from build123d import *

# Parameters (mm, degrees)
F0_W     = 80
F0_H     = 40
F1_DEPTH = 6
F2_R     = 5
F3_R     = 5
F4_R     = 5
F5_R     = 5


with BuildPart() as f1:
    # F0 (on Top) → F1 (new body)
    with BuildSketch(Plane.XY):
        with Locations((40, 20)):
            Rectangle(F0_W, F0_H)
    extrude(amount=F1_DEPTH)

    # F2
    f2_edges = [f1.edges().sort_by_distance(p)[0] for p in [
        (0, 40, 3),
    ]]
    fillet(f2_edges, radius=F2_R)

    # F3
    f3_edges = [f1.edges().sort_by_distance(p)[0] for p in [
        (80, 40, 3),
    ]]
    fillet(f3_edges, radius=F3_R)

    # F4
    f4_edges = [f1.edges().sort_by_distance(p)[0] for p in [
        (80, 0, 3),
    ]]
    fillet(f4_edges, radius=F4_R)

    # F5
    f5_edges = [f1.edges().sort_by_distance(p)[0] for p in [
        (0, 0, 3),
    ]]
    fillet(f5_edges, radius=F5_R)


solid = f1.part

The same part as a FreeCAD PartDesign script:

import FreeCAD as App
import Part
import Sketcher

V = App.Vector
Q = App.Units.Quantity


def edges_at(feature, points):
    """Names of the edges that pass closest to the given points."""
    edges = feature.Shape.Edges
    near = lambda p: min(range(len(edges)), key=lambda i: edges[i].distToShape(Part.Vertex(*p))[0])
    return sorted({f"Edge{near(p) + 1}" for p in points})

doc = App.newDocument("Part")
body = doc.addObject("PartDesign::Body", "Body")

# Sketch on XY plane
sketch1 = doc.addObject("Sketcher::SketchObject", "Sketch")
body.addObject(sketch1)
sketch1.AttachmentSupport = (doc.XY_Plane, [""])
sketch1.MapMode = "FlatFace"
sketch1.addGeometry(Part.LineSegment(V(0, 40, 0), V(0, 0, 0)), False)
sketch1.addGeometry(Part.LineSegment(V(0, 0, 0), V(80, 0, 0)), False)
sketch1.addGeometry(Part.LineSegment(V(80, 0, 0), V(80, 40, 0)), False)
sketch1.addGeometry(Part.LineSegment(V(80, 40, 0), V(0, 40, 0)), False)
sketch1.addConstraint(Sketcher.Constraint("Coincident", 0, 2, 1, 1))
sketch1.addConstraint(Sketcher.Constraint("Coincident", 1, 2, 2, 1))
sketch1.addConstraint(Sketcher.Constraint("Coincident", 2, 2, 3, 1))
sketch1.addConstraint(Sketcher.Constraint("Coincident", 3, 2, 0, 1))
sketch1.addConstraint(Sketcher.Constraint("Vertical", 0))
sketch1.addConstraint(Sketcher.Constraint("Horizontal", 1))
sketch1.addConstraint(Sketcher.Constraint("Vertical", 2))
sketch1.addConstraint(Sketcher.Constraint("Horizontal", 3))
sketch1.addConstraint(Sketcher.Constraint("Coincident", 0, 2, -1, 1))
sketch1.addConstraint(Sketcher.Constraint("DistanceX", 1, 1, 1, 2, Q("80 mm")))
sketch1.addConstraint(Sketcher.Constraint("DistanceY", 0, 2, 0, 1, Q("40 mm")))
pad1 = doc.addObject("PartDesign::Pad", "Pad")
body.addObject(pad1)
pad1.Profile = sketch1
pad1.Length = 6
doc.recompute()

fillet = doc.addObject("PartDesign::Fillet", "Fillet")
body.addObject(fillet)
fillet.Base = (pad1, edges_at(pad1, [(0, 40, 3)]))
fillet.Radius = 5
doc.recompute()

fillet2 = doc.addObject("PartDesign::Fillet", "Fillet001")
body.addObject(fillet2)
fillet2.Base = (fillet, edges_at(fillet, [(80, 40, 3)]))
fillet2.Radius = 5
doc.recompute()

fillet3 = doc.addObject("PartDesign::Fillet", "Fillet002")
body.addObject(fillet3)
fillet3.Base = (fillet2, edges_at(fillet2, [(80, 0, 3)]))
fillet3.Radius = 5
doc.recompute()

fillet4 = doc.addObject("PartDesign::Fillet", "Fillet003")
body.addObject(fillet4)
fillet4.Base = (fillet3, edges_at(fillet3, [(0, 0, 3)]))
fillet4.Radius = 5

doc.recompute()
